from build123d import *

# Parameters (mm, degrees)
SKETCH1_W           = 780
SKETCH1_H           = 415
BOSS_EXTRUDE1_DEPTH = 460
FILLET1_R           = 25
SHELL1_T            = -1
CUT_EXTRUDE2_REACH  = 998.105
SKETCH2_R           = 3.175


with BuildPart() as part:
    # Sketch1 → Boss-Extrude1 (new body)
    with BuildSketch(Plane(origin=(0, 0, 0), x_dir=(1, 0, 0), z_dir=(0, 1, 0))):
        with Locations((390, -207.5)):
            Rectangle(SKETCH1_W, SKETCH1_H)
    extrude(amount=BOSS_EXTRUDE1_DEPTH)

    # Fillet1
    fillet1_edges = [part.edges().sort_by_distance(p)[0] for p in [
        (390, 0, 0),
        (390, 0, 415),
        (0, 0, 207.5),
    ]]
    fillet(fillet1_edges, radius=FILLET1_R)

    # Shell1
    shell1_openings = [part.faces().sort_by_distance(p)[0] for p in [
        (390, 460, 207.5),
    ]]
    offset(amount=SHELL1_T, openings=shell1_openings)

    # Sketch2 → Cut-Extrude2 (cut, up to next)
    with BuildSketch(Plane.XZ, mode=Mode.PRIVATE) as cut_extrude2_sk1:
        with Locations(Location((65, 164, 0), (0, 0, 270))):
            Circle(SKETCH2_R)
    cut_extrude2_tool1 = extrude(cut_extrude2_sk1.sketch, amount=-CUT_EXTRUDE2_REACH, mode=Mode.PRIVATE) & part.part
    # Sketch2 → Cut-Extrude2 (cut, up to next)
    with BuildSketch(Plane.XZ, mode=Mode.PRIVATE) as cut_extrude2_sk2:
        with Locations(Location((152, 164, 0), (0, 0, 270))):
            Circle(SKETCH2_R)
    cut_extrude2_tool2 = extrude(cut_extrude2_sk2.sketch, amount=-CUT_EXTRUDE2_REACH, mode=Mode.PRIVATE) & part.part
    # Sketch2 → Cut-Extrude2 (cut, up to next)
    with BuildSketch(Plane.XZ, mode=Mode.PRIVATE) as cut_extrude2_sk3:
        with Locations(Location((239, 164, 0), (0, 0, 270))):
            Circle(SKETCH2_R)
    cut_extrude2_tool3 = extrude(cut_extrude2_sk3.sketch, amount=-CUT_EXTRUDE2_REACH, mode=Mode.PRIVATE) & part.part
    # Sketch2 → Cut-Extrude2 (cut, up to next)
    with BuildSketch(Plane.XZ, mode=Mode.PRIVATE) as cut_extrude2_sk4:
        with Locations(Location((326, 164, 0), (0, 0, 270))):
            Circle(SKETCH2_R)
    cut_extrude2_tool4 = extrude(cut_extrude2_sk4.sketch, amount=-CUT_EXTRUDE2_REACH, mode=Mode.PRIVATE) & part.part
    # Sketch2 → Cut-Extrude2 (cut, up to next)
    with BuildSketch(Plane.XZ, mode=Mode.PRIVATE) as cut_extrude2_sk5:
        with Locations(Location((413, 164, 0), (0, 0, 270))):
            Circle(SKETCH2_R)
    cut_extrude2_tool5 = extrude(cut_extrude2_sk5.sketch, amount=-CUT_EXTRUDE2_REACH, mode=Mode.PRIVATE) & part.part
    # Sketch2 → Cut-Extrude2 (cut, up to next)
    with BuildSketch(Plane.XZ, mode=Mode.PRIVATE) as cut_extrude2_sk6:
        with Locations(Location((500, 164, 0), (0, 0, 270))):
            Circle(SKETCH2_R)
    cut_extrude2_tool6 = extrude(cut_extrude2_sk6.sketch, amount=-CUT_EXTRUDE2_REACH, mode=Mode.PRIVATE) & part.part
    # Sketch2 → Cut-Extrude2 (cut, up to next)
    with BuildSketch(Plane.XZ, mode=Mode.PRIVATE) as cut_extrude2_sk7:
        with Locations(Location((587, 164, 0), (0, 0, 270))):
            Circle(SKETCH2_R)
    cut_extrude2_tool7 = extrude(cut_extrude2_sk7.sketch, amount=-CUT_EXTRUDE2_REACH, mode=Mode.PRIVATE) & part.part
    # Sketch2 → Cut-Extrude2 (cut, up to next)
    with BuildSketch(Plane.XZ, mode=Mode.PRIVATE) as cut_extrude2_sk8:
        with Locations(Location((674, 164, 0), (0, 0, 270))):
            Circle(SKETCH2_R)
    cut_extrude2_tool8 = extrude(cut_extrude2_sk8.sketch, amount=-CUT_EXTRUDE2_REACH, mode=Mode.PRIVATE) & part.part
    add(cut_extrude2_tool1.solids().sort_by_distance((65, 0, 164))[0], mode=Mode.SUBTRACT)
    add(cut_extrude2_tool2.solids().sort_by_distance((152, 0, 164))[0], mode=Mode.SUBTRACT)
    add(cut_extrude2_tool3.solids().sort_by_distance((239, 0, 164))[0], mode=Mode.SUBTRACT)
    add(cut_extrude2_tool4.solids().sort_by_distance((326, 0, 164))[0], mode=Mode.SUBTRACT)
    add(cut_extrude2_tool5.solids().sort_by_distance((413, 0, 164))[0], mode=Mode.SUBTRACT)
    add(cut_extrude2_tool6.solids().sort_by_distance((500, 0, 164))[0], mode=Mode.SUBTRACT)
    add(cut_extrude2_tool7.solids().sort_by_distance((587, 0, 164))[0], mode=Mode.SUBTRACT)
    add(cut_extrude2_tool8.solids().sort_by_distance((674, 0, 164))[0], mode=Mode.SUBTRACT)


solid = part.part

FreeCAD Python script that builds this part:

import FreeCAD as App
import Part
import Sketcher

V = App.Vector


def edges_at(feature, points):
    """Names of the edges that pass closest to the given points."""
    edges = feature.Shape.Edges
    near = lambda p: min(range(len(edges)), key=lambda i: edges[i].distToShape(Part.Vertex(*p))[0])
    return sorted({f"Edge{near(p) + 1}" for p in points})


def faces_at(feature, points):
    """Names of the faces that lie closest to the given points."""
    faces = feature.Shape.Faces
    near = lambda p: min(range(len(faces)), key=lambda i: faces[i].distToShape(Part.Vertex(*p))[0])
    return sorted({f"Face{near(p) + 1}" for p in points})


def add_polygon(sketch, points):
    """Adds a closed chain of lines whose ends are joined by coincident constraints."""
    first, n = sketch.GeometryCount, len(points)
    for a, b in zip(points, points[1:] + points[:1]):
        sketch.addGeometry(Part.LineSegment(App.Vector(*a, 0), App.Vector(*b, 0)), False)
    for i in range(n):
        sketch.addConstraint(Sketcher.Constraint("Coincident", first + i, 2, first + (i + 1) % n, 1))

doc = App.newDocument("Part")
body = doc.addObject("PartDesign::Body", "Body")

# Sketch on XZ plane
sketch1 = body.newObject("Sketcher::SketchObject", "Sketch")
sketch1.AttachmentSupport = (doc.getObject("XZ_Plane"), [""])
sketch1.MapMode = "FlatFace"
add_polygon(sketch1, [(0, 0), (0, 415), (780, 415), (780, 0)])  # lines 0-3
sketch1.addConstraint(Sketcher.Constraint("Vertical", 0))
sketch1.addConstraint(Sketcher.Constraint("Horizontal", 1))
sketch1.addConstraint(Sketcher.Constraint("Vertical", 2))
sketch1.addConstraint(Sketcher.Constraint("Horizontal", 3))
sketch1.addConstraint(Sketcher.Constraint("Coincident", 3, 2, -1, 1))
sketch1.addConstraint(Sketcher.Constraint("DistanceX", 1, 1, 1, 2, 780.0))
sketch1.addConstraint(Sketcher.Constraint("DistanceY", 0, 1, 0, 2, 415.0))
pad1 = body.newObject("PartDesign::Pad", "Pad")
pad1.Profile = sketch1
pad1.Length = 460
pad1.Reversed = True
doc.recompute()

fillet = body.newObject("PartDesign::Fillet", "Fillet")
fillet.Base = (pad1, edges_at(pad1, [(390, 0, 0), (390, 0, 415), (0, 0, 207.5)]))
fillet.Radius = 25
doc.recompute()

thickness = body.newObject("PartDesign::Thickness", "Thickness")
thickness.Base = (fillet, faces_at(fillet, [(390, 460, 207.5)]))
thickness.Value = 1
thickness.Reversed = True
thickness.Join = "Arc"

# Sketch on XZ plane
sketch2 = body.newObject("Sketcher::SketchObject", "Sketch001")
sketch2.AttachmentSupport = (doc.getObject("XZ_Plane"), [""])
sketch2.MapMode = "FlatFace"
sketch2.addGeometry(Part.Circle(V(65, 164, 0), V(0, 0, 1), 3.2), False)
sketch2.addConstraint(Sketcher.Constraint("Diameter", 0, 6.35))
sketch2.addConstraint(Sketcher.Constraint("DistanceX", -1, 1, 0, 3, 65.0))
sketch2.addConstraint(Sketcher.Constraint("DistanceY", -1, 1, 0, 3, 164.0))
pocket1 = body.newObject("PartDesign::Pocket", "Pocket")
pocket1.Profile = sketch2
pocket1.Type = "UpToFirst"

# Sketch on XZ plane
sketch3 = body.newObject("Sketcher::SketchObject", "Sketch002")
sketch3.AttachmentSupport = (doc.getObject("XZ_Plane"), [""])
sketch3.MapMode = "FlatFace"
sketch3.addGeometry(Part.Circle(V(152, 164, 0), V(0, 0, 1), 3.2), False)
sketch3.addConstraint(Sketcher.Constraint("Diameter", 0, 6.35))
sketch3.addConstraint(Sketcher.Constraint("DistanceX", -1, 1, 0, 3, 152.0))
sketch3.addConstraint(Sketcher.Constraint("DistanceY", -1, 1, 0, 3, 164.0))
pocket2 = body.newObject("PartDesign::Pocket", "Pocket001")
pocket2.Profile = sketch3
pocket2.Type = "UpToFirst"

# Sketch on XZ plane
sketch4 = body.newObject("Sketcher::SketchObject", "Sketch003")
sketch4.AttachmentSupport = (doc.getObject("XZ_Plane"), [""])
sketch4.MapMode = "FlatFace"
sketch4.addGeometry(Part.Circle(V(239, 164, 0), V(0, 0, 1), 3.2), False)
sketch4.addConstraint(Sketcher.Constraint("Diameter", 0, 6.35))
sketch4.addConstraint(Sketcher.Constraint("DistanceX", -1, 1, 0, 3, 239.0))
sketch4.addConstraint(Sketcher.Constraint("DistanceY", -1, 1, 0, 3, 164.0))
pocket3 = body.newObject("PartDesign::Pocket", "Pocket002")
pocket3.Profile = sketch4
pocket3.Type = "UpToFirst"

# Sketch on XZ plane
sketch5 = body.newObject("Sketcher::SketchObject", "Sketch004")
sketch5.AttachmentSupport = (doc.getObject("XZ_Plane"), [""])
sketch5.MapMode = "FlatFace"
sketch5.addGeometry(Part.Circle(V(326, 164, 0), V(0, 0, 1), 3.2), False)
sketch5.addConstraint(Sketcher.Constraint("Diameter", 0, 6.35))
sketch5.addConstraint(Sketcher.Constraint("DistanceX", -1, 1, 0, 3, 326.0))
sketch5.addConstraint(Sketcher.Constraint("DistanceY", -1, 1, 0, 3, 164.0))
pocket4 = body.newObject("PartDesign::Pocket", "Pocket003")
pocket4.Profile = sketch5
pocket4.Type = "UpToFirst"

# Sketch on XZ plane
sketch6 = body.newObject("Sketcher::SketchObject", "Sketch005")
sketch6.AttachmentSupport = (doc.getObject("XZ_Plane"), [""])
sketch6.MapMode = "FlatFace"
sketch6.addGeometry(Part.Circle(V(413, 164, 0), V(0, 0, 1), 3.2), False)
sketch6.addConstraint(Sketcher.Constraint("Diameter", 0, 6.35))
sketch6.addConstraint(Sketcher.Constraint("DistanceX", -1, 1, 0, 3, 413.0))
sketch6.addConstraint(Sketcher.Constraint("DistanceY", -1, 1, 0, 3, 164.0))
pocket5 = body.newObject("PartDesign::Pocket", "Pocket004")
pocket5.Profile = sketch6
pocket5.Type = "UpToFirst"

# Sketch on XZ plane
sketch7 = body.newObject("Sketcher::SketchObject", "Sketch006")
sketch7.AttachmentSupport = (doc.getObject("XZ_Plane"), [""])
sketch7.MapMode = "FlatFace"
sketch7.addGeometry(Part.Circle(V(500, 164, 0), V(0, 0, 1), 3.2), False)
sketch7.addConstraint(Sketcher.Constraint("Diameter", 0, 6.35))
sketch7.addConstraint(Sketcher.Constraint("DistanceX", -1, 1, 0, 3, 500.0))
sketch7.addConstraint(Sketcher.Constraint("DistanceY", -1, 1, 0, 3, 164.0))
pocket6 = body.newObject("PartDesign::Pocket", "Pocket005")
pocket6.Profile = sketch7
pocket6.Type = "UpToFirst"

# Sketch on XZ plane
sketch8 = body.newObject("Sketcher::SketchObject", "Sketch007")
sketch8.AttachmentSupport = (doc.getObject("XZ_Plane"), [""])
sketch8.MapMode = "FlatFace"
sketch8.addGeometry(Part.Circle(V(587, 164, 0), V(0, 0, 1), 3.2), False)
sketch8.addConstraint(Sketcher.Constraint("Diameter", 0, 6.35))
sketch8.addConstraint(Sketcher.Constraint("DistanceX", -1, 1, 0, 3, 587.0))
sketch8.addConstraint(Sketcher.Constraint("DistanceY", -1, 1, 0, 3, 164.0))
pocket7 = body.newObject("PartDesign::Pocket", "Pocket006")
pocket7.Profile = sketch8
pocket7.Type = "UpToFirst"

# Sketch on XZ plane
sketch9 = body.newObject("Sketcher::SketchObject", "Sketch008")
sketch9.AttachmentSupport = (doc.getObject("XZ_Plane"), [""])
sketch9.MapMode = "FlatFace"
sketch9.addGeometry(Part.Circle(V(674, 164, 0), V(0, 0, 1), 3.2), False)
sketch9.addConstraint(Sketcher.Constraint("Diameter", 0, 6.35))
sketch9.addConstraint(Sketcher.Constraint("DistanceX", -1, 1, 0, 3, 674.0))
sketch9.addConstraint(Sketcher.Constraint("DistanceY", -1, 1, 0, 3, 164.0))
pocket8 = body.newObject("PartDesign::Pocket", "Pocket007")
pocket8.Profile = sketch9
pocket8.Type = "UpToFirst"

doc.recompute()
